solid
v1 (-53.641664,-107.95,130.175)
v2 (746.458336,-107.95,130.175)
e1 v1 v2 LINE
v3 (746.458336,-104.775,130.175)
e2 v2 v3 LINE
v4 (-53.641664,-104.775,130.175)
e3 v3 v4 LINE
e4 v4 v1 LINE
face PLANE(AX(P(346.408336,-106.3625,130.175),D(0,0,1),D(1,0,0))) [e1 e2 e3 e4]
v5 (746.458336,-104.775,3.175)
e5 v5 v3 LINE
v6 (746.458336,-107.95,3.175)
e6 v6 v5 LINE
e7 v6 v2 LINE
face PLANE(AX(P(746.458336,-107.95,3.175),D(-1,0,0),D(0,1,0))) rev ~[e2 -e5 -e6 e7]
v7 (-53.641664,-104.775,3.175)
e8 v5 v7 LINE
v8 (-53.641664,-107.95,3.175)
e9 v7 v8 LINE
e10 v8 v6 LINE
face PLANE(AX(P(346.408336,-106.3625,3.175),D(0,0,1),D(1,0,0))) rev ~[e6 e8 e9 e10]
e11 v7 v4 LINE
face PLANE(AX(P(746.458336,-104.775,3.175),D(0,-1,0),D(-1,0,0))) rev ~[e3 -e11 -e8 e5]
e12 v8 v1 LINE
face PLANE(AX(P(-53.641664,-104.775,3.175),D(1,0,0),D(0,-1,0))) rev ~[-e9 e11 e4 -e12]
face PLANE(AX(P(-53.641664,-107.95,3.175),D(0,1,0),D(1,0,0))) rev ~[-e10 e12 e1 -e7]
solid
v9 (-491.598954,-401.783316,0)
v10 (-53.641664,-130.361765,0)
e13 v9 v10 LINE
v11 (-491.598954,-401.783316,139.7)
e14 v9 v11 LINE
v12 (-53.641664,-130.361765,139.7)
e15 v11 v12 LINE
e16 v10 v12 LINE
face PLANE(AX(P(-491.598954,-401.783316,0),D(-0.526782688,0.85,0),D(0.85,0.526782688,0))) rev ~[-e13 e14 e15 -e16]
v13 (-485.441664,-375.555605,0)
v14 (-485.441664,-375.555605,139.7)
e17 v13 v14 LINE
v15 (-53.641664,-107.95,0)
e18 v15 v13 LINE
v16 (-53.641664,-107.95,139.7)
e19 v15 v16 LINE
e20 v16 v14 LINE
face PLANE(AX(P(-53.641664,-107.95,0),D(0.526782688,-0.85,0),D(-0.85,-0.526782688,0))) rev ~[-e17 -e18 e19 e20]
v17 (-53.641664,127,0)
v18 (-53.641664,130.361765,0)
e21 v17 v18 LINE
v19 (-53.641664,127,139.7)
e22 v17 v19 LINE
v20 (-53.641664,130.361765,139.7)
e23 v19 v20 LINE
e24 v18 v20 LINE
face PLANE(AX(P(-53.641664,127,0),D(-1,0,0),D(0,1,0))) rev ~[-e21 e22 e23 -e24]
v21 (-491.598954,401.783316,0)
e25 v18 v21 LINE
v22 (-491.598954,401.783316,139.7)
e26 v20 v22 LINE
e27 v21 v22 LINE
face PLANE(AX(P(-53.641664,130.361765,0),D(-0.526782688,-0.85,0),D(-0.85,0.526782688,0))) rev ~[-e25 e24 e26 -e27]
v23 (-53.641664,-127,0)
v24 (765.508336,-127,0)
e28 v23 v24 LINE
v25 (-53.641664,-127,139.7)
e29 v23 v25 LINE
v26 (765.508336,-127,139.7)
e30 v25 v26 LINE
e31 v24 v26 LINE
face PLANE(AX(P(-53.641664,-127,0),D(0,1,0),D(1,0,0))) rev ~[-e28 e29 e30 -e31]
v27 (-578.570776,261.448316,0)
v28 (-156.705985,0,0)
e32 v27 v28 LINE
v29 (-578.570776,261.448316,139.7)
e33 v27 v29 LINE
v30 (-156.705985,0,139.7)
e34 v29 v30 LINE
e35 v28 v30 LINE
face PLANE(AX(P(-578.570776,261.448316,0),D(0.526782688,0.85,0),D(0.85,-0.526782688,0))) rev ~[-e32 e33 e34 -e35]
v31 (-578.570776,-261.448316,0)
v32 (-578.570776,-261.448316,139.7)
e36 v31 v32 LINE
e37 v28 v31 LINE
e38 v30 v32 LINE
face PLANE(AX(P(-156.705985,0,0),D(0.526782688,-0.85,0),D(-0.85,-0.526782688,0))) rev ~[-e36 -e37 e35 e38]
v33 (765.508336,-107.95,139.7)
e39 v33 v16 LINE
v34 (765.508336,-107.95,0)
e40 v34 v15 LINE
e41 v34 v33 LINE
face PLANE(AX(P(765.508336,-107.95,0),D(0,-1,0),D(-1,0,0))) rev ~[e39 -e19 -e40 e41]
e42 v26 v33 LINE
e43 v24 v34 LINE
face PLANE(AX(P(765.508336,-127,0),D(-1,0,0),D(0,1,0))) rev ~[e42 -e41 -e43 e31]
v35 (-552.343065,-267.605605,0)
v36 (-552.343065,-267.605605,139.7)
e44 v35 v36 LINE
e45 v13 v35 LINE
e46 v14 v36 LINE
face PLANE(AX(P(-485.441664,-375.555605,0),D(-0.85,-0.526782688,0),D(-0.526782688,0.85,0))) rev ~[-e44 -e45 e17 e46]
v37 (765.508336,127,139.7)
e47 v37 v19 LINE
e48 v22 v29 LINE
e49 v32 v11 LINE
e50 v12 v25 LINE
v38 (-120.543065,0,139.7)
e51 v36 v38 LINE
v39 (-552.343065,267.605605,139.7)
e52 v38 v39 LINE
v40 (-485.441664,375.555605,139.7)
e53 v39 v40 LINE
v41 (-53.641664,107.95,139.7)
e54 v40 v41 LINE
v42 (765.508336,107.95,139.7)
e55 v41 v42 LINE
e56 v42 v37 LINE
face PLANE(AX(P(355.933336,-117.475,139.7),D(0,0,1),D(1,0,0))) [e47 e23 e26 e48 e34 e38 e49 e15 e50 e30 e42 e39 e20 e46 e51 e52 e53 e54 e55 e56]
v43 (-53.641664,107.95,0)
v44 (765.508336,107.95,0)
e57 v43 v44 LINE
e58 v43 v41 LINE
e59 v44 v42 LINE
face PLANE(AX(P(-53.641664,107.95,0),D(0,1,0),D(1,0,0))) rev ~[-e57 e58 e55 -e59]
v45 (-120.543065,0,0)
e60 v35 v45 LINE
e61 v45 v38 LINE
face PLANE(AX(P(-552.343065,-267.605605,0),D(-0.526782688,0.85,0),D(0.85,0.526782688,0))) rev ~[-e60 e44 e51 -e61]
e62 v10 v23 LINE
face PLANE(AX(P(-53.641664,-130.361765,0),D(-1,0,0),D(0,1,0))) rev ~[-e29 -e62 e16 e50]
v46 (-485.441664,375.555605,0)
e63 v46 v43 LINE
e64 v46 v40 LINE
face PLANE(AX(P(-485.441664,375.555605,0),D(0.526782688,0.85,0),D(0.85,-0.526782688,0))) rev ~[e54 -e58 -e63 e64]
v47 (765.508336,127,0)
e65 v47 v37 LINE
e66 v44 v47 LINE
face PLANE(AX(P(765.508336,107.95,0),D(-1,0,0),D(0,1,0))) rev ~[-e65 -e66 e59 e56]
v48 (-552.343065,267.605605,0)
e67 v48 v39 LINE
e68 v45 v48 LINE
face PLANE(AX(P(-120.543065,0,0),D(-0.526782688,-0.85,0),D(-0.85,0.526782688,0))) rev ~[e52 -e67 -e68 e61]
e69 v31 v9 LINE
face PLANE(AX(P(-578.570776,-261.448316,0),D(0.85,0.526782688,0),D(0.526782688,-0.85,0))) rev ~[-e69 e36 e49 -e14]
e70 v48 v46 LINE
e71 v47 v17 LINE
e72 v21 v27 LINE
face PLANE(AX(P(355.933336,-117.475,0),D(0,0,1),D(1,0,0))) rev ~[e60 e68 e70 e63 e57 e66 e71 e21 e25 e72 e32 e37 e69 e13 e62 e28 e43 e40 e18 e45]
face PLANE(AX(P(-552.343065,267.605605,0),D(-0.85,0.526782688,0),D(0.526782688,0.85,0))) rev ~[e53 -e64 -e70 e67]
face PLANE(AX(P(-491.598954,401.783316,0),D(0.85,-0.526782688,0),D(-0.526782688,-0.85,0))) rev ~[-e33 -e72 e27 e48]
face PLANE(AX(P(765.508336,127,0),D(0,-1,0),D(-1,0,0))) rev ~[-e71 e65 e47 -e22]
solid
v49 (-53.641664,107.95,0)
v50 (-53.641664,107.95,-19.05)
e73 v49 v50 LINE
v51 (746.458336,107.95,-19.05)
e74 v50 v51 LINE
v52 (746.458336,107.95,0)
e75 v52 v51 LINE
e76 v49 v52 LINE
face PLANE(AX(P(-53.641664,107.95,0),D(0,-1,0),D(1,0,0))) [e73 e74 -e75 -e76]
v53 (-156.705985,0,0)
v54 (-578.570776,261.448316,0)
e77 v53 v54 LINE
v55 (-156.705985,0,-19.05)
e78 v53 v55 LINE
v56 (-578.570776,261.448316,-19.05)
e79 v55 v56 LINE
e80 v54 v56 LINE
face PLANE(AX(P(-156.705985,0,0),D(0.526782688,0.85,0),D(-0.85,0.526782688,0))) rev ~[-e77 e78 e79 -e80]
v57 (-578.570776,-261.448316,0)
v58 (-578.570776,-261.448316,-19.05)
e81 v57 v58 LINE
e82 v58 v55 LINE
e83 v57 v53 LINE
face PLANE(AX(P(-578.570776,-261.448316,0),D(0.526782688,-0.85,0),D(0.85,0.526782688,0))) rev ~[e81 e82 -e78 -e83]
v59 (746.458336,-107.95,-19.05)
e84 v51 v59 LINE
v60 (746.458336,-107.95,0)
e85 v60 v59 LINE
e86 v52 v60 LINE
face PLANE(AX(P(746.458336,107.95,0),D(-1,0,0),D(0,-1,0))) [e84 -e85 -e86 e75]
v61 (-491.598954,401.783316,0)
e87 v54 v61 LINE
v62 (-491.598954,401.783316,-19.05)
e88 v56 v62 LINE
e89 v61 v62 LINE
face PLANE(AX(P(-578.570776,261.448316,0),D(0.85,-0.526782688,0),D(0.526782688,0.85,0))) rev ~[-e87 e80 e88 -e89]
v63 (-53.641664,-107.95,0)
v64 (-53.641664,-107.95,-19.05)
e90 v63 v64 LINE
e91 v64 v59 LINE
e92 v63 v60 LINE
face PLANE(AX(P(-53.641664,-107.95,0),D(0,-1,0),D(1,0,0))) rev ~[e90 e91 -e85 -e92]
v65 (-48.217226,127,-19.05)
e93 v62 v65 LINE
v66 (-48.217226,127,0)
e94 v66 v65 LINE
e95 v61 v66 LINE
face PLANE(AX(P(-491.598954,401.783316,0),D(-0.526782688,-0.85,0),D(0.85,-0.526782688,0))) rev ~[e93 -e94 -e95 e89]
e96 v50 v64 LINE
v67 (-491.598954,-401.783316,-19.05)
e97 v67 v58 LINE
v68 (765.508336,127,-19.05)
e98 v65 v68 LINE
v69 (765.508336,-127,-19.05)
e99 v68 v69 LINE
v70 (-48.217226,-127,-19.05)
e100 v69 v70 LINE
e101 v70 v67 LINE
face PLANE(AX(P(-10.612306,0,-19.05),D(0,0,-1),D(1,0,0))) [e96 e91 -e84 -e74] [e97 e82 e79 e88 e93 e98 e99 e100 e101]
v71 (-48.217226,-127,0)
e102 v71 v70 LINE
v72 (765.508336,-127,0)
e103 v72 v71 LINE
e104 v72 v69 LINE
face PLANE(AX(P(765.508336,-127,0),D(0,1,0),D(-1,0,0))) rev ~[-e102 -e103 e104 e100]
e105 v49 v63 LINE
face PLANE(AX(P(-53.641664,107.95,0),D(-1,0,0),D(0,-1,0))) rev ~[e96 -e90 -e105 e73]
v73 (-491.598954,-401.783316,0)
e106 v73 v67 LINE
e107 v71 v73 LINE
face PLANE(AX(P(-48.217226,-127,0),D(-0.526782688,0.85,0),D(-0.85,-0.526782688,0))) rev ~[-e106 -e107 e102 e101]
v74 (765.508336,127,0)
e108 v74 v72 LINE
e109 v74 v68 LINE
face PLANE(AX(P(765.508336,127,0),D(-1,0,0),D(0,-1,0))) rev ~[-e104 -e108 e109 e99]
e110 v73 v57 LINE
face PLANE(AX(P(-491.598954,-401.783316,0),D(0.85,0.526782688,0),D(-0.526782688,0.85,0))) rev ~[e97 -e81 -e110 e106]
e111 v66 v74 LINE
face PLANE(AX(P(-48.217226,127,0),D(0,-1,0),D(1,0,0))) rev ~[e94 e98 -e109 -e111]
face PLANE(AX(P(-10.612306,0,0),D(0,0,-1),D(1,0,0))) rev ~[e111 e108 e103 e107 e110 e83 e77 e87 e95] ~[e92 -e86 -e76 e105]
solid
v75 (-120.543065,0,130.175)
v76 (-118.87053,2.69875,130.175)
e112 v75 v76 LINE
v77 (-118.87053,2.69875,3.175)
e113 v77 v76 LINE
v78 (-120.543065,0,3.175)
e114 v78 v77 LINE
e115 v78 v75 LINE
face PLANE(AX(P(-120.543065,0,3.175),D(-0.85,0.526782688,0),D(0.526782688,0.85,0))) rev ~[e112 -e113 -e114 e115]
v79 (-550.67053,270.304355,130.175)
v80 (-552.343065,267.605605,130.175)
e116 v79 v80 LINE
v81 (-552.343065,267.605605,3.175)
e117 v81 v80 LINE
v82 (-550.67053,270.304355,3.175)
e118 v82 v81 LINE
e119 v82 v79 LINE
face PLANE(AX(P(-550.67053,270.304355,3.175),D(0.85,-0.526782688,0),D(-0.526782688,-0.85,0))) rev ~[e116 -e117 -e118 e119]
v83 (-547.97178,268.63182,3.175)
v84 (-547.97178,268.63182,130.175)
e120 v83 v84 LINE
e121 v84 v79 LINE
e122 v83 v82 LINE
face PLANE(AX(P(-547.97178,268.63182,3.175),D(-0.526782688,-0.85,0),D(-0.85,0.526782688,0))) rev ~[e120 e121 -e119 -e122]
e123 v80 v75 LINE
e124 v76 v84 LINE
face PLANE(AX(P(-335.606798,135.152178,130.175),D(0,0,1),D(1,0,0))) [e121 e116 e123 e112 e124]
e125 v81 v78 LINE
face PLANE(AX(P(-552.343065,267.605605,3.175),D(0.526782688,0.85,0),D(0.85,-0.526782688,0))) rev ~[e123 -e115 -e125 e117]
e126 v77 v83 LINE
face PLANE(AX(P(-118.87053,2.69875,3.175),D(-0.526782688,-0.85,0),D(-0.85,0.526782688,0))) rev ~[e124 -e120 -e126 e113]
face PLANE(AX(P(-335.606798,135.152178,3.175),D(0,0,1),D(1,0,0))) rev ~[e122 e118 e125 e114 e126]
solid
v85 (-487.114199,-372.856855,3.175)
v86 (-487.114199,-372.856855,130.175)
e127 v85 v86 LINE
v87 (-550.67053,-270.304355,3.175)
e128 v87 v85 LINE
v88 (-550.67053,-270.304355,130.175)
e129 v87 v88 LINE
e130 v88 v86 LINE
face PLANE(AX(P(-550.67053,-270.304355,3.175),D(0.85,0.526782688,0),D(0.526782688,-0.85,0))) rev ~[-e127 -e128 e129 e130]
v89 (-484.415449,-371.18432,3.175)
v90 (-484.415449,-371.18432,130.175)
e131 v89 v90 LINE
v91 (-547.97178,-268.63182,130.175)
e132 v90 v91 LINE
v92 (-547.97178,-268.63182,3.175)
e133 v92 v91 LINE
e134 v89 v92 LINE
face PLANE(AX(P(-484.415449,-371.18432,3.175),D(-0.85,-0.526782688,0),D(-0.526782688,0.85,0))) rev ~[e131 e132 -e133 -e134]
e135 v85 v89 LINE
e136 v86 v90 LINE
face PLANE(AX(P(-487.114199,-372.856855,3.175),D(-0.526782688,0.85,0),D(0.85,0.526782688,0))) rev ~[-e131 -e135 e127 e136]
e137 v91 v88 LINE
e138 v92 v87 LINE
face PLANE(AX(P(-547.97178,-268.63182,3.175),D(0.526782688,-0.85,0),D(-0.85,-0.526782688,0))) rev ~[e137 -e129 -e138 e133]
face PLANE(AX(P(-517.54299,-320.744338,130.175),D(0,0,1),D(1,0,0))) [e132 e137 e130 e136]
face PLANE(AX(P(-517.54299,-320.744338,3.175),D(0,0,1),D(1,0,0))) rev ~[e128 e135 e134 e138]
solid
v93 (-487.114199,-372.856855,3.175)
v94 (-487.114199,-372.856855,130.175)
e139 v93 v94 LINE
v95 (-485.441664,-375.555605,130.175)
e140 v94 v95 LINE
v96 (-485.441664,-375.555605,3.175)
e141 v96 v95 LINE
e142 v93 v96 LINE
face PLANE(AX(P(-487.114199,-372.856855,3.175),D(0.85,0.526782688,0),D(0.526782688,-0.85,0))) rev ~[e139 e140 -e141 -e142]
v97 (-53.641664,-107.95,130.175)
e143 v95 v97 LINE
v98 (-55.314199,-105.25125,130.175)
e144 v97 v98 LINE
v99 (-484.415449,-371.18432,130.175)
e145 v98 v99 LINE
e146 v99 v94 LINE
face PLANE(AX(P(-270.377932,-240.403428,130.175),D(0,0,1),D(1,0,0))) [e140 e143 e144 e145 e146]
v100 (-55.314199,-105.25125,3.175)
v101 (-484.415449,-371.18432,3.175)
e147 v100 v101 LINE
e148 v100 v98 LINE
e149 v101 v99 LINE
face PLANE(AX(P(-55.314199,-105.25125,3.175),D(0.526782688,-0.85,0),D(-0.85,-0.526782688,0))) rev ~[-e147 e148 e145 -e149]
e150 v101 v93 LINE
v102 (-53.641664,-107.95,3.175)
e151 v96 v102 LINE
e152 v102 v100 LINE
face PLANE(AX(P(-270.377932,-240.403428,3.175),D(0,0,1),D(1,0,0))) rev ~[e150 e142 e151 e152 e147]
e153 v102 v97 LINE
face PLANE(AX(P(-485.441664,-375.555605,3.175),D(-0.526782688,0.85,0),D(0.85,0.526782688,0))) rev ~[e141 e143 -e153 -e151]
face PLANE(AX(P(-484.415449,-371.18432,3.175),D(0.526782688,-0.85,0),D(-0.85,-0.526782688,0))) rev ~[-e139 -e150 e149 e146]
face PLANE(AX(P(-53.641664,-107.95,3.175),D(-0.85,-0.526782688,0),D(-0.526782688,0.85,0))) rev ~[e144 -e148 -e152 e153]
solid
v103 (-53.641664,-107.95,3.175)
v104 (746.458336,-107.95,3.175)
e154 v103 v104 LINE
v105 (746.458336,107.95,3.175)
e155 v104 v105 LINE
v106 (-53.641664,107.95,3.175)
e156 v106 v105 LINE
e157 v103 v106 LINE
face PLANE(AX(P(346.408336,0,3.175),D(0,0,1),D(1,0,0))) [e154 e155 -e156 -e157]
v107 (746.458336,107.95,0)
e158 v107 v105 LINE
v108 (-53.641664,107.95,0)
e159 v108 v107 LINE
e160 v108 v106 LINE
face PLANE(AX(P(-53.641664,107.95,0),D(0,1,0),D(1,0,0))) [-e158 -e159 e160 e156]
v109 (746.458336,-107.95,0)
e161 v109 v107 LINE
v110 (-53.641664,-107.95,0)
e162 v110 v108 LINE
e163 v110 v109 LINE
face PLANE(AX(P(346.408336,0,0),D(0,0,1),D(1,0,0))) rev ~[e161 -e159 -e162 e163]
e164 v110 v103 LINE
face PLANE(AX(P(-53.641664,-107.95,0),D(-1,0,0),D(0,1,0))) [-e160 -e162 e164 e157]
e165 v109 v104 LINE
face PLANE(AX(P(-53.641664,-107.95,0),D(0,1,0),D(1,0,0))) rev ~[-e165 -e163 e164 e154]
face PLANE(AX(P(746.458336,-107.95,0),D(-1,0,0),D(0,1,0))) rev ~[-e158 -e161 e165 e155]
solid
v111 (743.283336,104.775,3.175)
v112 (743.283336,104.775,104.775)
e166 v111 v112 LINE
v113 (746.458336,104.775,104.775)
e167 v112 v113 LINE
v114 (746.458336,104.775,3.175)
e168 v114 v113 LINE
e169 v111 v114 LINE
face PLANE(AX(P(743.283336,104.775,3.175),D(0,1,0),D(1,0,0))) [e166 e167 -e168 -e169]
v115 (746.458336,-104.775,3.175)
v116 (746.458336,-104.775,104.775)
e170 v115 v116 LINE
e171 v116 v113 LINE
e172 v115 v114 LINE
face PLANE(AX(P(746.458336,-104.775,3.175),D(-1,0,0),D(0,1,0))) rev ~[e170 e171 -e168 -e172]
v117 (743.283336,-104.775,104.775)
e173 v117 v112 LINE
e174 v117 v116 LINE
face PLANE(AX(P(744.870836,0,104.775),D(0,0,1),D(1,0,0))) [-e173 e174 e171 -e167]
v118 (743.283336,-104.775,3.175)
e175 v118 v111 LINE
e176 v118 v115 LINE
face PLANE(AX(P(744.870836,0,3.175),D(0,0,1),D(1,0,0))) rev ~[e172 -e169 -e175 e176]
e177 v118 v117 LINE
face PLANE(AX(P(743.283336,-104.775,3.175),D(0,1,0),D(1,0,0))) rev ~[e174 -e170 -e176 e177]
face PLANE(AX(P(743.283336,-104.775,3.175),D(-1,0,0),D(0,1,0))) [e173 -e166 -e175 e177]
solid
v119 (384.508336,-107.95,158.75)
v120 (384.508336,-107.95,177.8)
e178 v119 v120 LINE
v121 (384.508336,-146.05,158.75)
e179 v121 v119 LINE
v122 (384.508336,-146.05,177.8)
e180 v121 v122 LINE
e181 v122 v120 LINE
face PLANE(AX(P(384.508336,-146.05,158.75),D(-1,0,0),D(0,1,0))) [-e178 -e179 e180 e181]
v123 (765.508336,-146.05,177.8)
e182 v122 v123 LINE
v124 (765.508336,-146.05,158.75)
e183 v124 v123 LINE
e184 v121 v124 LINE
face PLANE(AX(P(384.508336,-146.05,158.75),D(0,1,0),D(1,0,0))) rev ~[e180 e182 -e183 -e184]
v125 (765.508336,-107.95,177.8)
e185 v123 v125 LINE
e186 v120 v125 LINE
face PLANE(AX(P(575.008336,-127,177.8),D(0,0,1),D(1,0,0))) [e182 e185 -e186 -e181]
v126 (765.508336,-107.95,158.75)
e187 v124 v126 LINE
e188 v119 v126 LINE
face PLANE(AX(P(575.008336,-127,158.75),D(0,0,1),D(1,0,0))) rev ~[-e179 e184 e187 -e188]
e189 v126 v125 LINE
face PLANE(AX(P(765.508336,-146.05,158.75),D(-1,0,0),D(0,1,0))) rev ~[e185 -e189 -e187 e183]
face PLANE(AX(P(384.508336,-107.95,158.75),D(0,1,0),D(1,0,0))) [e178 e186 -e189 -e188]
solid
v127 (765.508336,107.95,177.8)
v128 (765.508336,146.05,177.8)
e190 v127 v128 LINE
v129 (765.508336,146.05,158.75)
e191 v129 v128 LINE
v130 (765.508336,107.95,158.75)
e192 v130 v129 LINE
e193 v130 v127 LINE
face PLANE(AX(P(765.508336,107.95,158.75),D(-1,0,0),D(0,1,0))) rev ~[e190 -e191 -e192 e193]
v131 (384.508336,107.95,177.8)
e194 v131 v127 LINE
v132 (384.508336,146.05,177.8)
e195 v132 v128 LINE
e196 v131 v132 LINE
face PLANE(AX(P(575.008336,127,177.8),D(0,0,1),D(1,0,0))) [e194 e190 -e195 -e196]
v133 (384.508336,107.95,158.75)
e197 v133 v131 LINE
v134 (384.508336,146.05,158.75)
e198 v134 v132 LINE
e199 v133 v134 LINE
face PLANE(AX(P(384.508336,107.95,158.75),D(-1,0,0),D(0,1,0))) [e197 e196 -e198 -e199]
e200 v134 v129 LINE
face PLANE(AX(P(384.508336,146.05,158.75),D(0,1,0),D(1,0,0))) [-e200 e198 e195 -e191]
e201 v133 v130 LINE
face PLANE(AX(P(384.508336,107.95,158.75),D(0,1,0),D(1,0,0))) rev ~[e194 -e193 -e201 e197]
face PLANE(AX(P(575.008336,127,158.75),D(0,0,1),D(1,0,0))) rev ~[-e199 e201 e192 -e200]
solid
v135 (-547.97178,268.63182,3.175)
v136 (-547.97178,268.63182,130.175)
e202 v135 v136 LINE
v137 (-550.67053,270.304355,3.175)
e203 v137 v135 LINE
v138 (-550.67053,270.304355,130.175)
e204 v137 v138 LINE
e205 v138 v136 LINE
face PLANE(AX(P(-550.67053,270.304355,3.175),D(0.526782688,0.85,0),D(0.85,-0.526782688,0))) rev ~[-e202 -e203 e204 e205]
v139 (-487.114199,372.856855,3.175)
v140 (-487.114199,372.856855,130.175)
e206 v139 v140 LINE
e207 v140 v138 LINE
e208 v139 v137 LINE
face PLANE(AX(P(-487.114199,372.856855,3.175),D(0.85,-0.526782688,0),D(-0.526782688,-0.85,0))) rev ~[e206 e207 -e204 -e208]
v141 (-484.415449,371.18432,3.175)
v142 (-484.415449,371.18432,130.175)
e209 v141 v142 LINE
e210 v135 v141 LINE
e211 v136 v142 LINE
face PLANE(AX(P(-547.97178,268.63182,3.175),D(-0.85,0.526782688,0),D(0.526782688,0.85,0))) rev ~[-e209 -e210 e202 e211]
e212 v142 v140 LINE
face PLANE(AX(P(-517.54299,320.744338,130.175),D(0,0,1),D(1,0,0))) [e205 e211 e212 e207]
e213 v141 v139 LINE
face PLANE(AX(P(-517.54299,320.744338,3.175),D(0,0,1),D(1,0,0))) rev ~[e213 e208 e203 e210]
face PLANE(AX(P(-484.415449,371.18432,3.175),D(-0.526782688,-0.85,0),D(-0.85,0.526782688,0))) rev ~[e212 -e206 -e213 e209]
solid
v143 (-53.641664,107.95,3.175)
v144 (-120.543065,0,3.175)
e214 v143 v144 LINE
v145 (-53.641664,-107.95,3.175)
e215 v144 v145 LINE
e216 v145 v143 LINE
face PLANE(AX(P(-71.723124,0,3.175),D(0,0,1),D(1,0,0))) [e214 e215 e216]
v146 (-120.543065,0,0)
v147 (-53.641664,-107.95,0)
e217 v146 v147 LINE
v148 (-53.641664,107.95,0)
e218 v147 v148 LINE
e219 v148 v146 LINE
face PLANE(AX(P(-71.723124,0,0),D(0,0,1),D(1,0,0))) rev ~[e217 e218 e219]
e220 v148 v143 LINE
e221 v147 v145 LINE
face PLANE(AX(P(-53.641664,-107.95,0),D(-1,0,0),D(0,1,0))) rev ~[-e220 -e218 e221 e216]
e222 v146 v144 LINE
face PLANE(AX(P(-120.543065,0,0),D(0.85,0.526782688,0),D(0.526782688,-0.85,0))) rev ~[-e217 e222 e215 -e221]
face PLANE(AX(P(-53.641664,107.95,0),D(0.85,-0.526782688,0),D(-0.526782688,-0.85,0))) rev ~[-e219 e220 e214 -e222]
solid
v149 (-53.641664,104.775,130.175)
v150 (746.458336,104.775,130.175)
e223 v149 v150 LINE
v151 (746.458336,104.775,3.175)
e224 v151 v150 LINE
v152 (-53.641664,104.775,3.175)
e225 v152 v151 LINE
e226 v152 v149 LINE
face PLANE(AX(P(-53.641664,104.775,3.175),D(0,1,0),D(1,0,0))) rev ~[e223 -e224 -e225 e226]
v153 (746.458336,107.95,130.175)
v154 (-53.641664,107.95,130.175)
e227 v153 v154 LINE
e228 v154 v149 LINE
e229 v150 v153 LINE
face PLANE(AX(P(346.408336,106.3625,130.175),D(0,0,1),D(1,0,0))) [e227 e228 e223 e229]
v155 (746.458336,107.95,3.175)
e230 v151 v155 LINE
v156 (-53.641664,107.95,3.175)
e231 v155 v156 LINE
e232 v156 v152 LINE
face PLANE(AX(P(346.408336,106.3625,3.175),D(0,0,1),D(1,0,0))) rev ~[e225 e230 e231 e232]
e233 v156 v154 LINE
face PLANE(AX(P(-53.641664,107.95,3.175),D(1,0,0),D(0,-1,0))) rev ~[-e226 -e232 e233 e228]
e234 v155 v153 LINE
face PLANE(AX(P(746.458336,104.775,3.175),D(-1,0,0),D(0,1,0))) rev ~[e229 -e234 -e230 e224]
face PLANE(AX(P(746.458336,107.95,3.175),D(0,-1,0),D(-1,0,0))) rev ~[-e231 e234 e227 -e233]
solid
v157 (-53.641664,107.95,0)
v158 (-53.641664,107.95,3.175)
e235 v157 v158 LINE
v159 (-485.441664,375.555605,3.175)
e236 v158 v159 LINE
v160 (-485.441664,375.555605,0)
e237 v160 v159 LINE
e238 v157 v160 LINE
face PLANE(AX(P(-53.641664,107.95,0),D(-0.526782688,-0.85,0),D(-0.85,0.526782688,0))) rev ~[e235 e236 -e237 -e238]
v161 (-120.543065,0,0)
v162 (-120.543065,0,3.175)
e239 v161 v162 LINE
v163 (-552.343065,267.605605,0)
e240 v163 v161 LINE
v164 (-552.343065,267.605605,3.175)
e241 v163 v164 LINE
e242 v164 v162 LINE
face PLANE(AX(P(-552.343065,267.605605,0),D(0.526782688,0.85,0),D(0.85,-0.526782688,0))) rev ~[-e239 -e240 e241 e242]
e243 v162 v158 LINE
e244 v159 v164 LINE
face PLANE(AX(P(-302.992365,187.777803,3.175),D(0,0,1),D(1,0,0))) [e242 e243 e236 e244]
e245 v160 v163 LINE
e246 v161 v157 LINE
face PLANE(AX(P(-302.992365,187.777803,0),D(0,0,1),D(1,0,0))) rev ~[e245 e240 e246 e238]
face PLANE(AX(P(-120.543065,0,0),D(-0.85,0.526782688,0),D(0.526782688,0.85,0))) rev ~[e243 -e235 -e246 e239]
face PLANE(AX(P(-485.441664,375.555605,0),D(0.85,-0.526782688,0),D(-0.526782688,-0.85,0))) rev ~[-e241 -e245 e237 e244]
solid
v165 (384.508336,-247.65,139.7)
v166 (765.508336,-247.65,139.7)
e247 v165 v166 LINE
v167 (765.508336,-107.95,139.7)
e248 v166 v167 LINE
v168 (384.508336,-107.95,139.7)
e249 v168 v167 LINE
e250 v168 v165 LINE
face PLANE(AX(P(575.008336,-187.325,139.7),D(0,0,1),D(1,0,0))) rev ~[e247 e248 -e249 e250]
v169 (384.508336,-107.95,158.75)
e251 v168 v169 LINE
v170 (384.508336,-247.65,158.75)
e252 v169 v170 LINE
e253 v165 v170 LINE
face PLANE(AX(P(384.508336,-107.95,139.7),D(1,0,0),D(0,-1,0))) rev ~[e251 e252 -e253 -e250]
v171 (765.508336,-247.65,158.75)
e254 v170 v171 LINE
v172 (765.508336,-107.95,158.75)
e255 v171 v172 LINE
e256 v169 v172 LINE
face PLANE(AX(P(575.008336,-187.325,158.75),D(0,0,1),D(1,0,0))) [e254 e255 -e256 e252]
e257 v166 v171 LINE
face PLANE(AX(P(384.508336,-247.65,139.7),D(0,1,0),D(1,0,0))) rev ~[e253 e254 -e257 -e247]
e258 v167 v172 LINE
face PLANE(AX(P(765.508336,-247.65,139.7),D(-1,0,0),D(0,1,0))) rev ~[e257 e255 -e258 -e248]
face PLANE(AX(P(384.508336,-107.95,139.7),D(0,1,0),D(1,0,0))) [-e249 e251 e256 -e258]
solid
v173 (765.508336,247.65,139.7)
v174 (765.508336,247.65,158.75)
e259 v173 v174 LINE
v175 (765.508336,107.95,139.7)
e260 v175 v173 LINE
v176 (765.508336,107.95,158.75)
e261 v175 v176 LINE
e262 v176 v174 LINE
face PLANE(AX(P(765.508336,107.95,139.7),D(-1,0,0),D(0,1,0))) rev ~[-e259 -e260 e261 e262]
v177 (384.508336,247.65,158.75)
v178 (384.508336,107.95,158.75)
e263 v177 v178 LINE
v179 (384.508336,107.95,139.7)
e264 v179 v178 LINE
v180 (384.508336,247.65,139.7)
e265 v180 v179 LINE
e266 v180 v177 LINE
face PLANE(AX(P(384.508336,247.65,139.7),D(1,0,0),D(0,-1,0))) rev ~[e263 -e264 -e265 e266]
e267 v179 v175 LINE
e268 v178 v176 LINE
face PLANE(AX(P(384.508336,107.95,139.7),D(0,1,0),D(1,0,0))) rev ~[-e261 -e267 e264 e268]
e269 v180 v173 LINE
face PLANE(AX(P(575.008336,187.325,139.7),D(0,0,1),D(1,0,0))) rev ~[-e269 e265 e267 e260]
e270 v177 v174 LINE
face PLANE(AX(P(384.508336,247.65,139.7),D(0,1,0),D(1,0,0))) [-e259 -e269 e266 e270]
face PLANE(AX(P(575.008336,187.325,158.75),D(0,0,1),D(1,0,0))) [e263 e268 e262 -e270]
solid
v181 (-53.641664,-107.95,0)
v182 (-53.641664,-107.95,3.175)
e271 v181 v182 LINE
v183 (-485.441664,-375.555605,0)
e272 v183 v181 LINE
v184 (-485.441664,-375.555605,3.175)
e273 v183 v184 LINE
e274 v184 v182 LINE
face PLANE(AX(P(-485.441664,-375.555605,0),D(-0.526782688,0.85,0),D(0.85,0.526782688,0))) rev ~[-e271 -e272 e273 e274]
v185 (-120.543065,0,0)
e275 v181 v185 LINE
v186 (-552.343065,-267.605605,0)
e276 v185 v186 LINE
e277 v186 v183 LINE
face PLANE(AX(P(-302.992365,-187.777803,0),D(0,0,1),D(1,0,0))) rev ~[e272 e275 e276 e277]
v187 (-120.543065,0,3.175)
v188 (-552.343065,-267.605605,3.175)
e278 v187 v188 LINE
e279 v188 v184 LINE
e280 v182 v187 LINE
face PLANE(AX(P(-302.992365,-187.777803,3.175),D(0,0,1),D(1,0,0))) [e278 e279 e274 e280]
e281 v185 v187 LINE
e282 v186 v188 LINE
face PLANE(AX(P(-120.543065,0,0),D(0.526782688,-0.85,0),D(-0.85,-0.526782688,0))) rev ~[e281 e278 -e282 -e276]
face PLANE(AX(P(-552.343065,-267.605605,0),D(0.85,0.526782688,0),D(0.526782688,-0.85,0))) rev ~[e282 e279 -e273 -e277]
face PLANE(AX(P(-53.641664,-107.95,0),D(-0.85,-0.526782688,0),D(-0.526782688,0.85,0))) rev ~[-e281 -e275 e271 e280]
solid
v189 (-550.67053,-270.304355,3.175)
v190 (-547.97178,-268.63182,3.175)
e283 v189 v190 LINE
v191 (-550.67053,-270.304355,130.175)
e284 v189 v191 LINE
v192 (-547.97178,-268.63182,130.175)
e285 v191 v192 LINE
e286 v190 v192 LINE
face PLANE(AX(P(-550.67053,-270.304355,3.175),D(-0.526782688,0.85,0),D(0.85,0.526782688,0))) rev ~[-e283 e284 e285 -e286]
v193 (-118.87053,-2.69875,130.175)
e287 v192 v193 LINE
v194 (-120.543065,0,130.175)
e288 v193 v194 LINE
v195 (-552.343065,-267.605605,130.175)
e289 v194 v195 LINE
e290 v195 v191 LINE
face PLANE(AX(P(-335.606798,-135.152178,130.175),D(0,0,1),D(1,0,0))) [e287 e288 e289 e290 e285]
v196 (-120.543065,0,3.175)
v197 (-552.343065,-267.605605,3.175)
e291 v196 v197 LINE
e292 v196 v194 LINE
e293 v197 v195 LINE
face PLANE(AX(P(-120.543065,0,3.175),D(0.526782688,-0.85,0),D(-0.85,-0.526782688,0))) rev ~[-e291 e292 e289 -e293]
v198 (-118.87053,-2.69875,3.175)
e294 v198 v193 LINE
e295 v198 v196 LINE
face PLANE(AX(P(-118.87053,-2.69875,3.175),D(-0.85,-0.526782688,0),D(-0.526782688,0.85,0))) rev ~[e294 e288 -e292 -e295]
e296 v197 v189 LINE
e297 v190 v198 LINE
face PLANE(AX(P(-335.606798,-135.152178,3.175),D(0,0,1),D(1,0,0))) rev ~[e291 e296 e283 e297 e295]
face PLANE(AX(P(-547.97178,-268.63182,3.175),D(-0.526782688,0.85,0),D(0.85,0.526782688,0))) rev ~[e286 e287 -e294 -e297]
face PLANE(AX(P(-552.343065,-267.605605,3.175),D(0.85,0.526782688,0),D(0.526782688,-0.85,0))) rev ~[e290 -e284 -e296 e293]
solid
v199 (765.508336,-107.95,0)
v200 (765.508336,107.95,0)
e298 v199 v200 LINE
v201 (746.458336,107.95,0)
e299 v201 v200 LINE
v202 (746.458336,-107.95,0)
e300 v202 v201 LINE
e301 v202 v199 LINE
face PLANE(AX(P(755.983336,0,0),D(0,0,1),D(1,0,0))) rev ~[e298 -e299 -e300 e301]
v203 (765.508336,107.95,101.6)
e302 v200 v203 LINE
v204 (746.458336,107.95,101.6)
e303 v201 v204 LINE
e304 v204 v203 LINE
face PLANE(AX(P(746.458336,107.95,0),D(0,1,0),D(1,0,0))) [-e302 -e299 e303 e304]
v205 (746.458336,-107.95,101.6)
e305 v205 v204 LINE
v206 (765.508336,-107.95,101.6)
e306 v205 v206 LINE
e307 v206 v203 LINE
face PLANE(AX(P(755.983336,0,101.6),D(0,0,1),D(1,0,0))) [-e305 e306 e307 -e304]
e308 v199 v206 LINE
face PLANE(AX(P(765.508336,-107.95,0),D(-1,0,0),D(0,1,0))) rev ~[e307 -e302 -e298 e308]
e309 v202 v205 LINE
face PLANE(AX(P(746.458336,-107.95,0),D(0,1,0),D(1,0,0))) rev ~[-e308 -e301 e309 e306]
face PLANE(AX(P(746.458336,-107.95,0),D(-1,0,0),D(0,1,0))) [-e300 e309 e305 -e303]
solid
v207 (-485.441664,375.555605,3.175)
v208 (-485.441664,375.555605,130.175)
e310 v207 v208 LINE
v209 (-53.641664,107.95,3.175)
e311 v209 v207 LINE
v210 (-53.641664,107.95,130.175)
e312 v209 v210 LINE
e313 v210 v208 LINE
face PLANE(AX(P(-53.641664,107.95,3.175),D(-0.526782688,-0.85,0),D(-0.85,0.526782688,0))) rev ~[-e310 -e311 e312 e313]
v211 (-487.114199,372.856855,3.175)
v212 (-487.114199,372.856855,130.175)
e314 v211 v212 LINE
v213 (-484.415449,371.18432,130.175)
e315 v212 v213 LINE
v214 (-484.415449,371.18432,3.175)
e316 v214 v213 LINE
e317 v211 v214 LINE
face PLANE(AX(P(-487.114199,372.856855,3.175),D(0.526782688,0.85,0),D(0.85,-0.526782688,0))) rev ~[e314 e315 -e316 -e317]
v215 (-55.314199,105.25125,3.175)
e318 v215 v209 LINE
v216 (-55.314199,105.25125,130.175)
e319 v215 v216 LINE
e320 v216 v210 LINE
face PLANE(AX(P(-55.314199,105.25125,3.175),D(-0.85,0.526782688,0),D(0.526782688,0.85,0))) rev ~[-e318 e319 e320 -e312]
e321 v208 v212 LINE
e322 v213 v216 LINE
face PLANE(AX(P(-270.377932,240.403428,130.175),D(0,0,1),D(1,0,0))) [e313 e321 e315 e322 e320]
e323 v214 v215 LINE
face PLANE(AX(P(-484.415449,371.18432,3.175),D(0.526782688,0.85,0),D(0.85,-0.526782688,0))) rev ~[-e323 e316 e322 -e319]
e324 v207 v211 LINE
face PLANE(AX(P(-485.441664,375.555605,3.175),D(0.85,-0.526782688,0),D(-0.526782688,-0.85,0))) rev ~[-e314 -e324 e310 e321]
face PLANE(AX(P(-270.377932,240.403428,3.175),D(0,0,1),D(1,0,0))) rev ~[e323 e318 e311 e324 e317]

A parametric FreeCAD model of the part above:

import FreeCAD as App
import Part
import Sketcher
from FreeCAD import Vector
Q = App.Units.Quantity


def add_polygon(sketch, points):
    """Adds a closed chain of lines whose ends are joined by coincident constraints."""
    first, n = sketch.GeometryCount, len(points)
    for a, b in zip(points, points[1:] + points[:1]):
        sketch.addGeometry(Part.LineSegment(App.Vector(*a, 0), App.Vector(*b, 0)), False)
    for i in range(n):
        sketch.addConstraint(Sketcher.Constraint("Coincident", first + i, 2, first + (i + 1) % n, 1))

doc = App.newDocument("Part")
body = doc.addObject("PartDesign::Body", "Body")

# Sketch on XY plane
sketch1 = body.newObject("Sketcher::SketchObject", "Sketch")
sketch1.AttachmentSupport = (doc.getObject("XY_Plane"), [""])
sketch1.MapMode = "FlatFace"
add_polygon(sketch1, [(-121, 0), (-54, 108), (-485, 376), (-552, 268)])  # lines 0-3
sketch1.addConstraint([
    Sketcher.Constraint("PointOnObject", 3, 2, -1),
    Sketcher.Constraint("Perpendicular", 0, 1),
    Sketcher.Constraint("Perpendicular", 1, 2),
    Sketcher.Constraint("Perpendicular", 2, 3),
    Sketcher.Constraint("Distance", 0, Q("5 in")),
    Sketcher.Constraint("Distance", 1, Q("20 in")),
    Sketcher.Constraint("DistanceX", 1, 2, 0, 2, Q("17 in")),
    Sketcher.Constraint("DistanceX", 0, 2, -1, 1, Q("53.641664 mm")),
])
pad1 = body.newObject("PartDesign::Pad", "Pad")
pad1.Profile = sketch1
pad1.Length = Q("0.125 in")
body2 = doc.addObject("PartDesign::Body", "Body001")

# Sketch on XY plane
sketch2 = body2.newObject("Sketcher::SketchObject", "Sketch001")
sketch2.AttachmentSupport = (doc.getObject("XY_Plane001"), [""])
sketch2.MapMode = "FlatFace"
add_polygon(sketch2, [(-485, -376), (-54, -108), (-121, 0), (-552, -268)])  # lines 0-3
sketch2.addConstraint([
    Sketcher.Constraint("PointOnObject", 1, 2, -1),
    Sketcher.Constraint("Perpendicular", 0, 1),
    Sketcher.Constraint("Perpendicular", 1, 2),
    Sketcher.Constraint("Perpendicular", 2, 3),
    Sketcher.Constraint("Distance", 0, Q("20 in")),
    Sketcher.Constraint("Distance", 1, Q("5 in")),
    Sketcher.Constraint("DistanceX", 2, 2, 1, 2, Q("17 in")),
    Sketcher.Constraint("DistanceX", 0, 2, -1, 1, Q("53.641664 mm")),
])
pad2 = body2.newObject("PartDesign::Pad", "Pad001")
pad2.Profile = sketch2
pad2.Length = Q("0.125 in")
body3 = doc.addObject("PartDesign::Body", "Body002")

# Sketch on XY plane
sketch3 = body3.newObject("Sketcher::SketchObject", "Sketch002")
sketch3.AttachmentSupport = (doc.getObject("XY_Plane002"), [""])
sketch3.MapMode = "FlatFace"
add_polygon(sketch3, [(-121, 0), (-54, -108), (-54, 108)])  # lines 0-2
sketch3.addConstraint([
    Sketcher.Constraint("Vertical", 1),
    Sketcher.Constraint("PointOnObject", 2, 2, -1),
    Sketcher.Constraint("Equal", 0, 2),
    Sketcher.Constraint("Distance", 0, Q("5 in")),
    Sketcher.Constraint("DistanceY", 1, 1, 1, 2, Q("8.5 in")),
    Sketcher.Constraint("DistanceX", 0, 2, -1, 1, Q("53.641664 mm")),
])
pad3 = body3.newObject("PartDesign::Pad", "Pad002")
pad3.Profile = sketch3
pad3.Length = Q("0.125 in")
body4 = doc.addObject("PartDesign::Body", "Body003")

# Sketch on XY plane
sketch4 = body4.newObject("Sketcher::SketchObject", "Sketch003")
sketch4.AttachmentSupport = (doc.getObject("XY_Plane003"), [""])
sketch4.MapMode = "FlatFace"
add_polygon(sketch4, [(-54, 108), (-54, -108), (746, -108), (746, 108)])  # lines 0-3
sketch4.addConstraint([
    Sketcher.Constraint("Vertical", 0),
    Sketcher.Constraint("Horizontal", 1),
    Sketcher.Constraint("Vertical", 2),
    Sketcher.Constraint("Horizontal", 3),
    Sketcher.Constraint("DistanceX", 1, 1, 1, 2, Q("31.5 in")),
    Sketcher.Constraint("DistanceY", 0, 2, 0, 1, Q("8.5 in")),
    Sketcher.Constraint("DistanceY", 0, 2, -1, 1, Q("4.25 in")),
    Sketcher.Constraint("DistanceX", 0, 2, -1, 1, Q("53.641664 mm")),
])
pad4 = body4.newObject("PartDesign::Pad", "Pad003")
pad4.Profile = sketch4
pad4.Length = Q("0.125 in")
body5 = doc.addObject("PartDesign::Body", "Body004")

# Sketch on XY plane
sketch5 = body5.newObject("Sketcher::SketchObject", "Sketch004")
sketch5.AttachmentSupport = (doc.getObject("XY_Plane004"), [""])
sketch5.MapMode = "FlatFace"
sketch5.AttachmentOffset = App.Placement(Vector(0, 0, 0.125 * 25.4), App.Rotation())
add_polygon(sketch5, [(-485.4, -375.6), (-53.6, -108), (-55.3, -105.3), (-484.4, -371.2), (-487.1, -372.9)])  # lines 0-4
sketch5.addConstraint([
    Sketcher.Constraint("Perpendicular", 0, 1),
    Sketcher.Constraint("Perpendicular", 1, 2),
    Sketcher.Constraint("Parallel", 2, 3),
    Sketcher.Constraint("Perpendicular", 3, 4),
    Sketcher.Constraint("Equal", 1, 3),
    Sketcher.Constraint("Distance", 0, Q("20 in")),
    Sketcher.Constraint("DistanceX", 3, 2, 1, 2, Q("17 in")),
    Sketcher.Constraint("DistanceY", 0, 2, -1, 1, Q("4.25 in")),
    Sketcher.Constraint("Distance", 1, Q("0.125 in")),
    Sketcher.Constraint("DistanceX", 1, 2, -1, 1, Q("55.314199 mm")),
])
pad5 = body5.newObject("PartDesign::Pad", "Pad004")
pad5.Profile = sketch5
pad5.Length = Q("5 in")
body6 = doc.addObject("PartDesign::Body", "Body005")

# Sketch on XY plane
sketch6 = body6.newObject("Sketcher::SketchObject", "Sketch005")
sketch6.AttachmentSupport = (doc.getObject("XY_Plane005"), [""])
sketch6.MapMode = "FlatFace"
sketch6.AttachmentOffset = App.Placement(Vector(0, 0, 0.125 * 25.4), App.Rotation())
add_polygon(sketch6, [(-550.7, -270.3), (-487.1, -372.9), (-484.4, -371.2), (-548, -268.6)])  # lines 0-3
sketch6.addConstraint([
    Sketcher.Constraint("Perpendicular", 0, 1),
    Sketcher.Constraint("Perpendicular", 1, 2),
    Sketcher.Constraint("Perpendicular", 2, 3),
    Sketcher.Constraint("Distance", 0, Q("4.75 in")),
    Sketcher.Constraint("Distance", 1, Q("0.125 in")),
    Sketcher.Constraint("DistanceY", 1, 2, 2, 2, Q("4.0375 in")),
    Sketcher.Constraint("DistanceX", 0, 2, -1, 1, Q("487.114199 mm")),
    Sketcher.Constraint("DistanceY", 1, 2, -1, 1, Q("371.18432 mm")),
])
pad6 = body6.newObject("PartDesign::Pad", "Pad005")
pad6.Profile = sketch6
pad6.Length = Q("5 in")
body7 = doc.addObject("PartDesign::Body", "Body006")

# Sketch on XY plane
sketch7 = body7.newObject("Sketcher::SketchObject", "Sketch006")
sketch7.AttachmentSupport = (doc.getObject("XY_Plane006"), [""])
sketch7.MapMode = "FlatFace"
sketch7.AttachmentOffset = App.Placement(Vector(0, 0, 0.125 * 25.4), App.Rotation())
add_polygon(sketch7, [(-552.3, -267.6), (-550.7, -270.3), (-548, -268.6), (-118.9, -2.7), (-120.5, 0)])  # lines 0-4
sketch7.addConstraint([
    Sketcher.Constraint("PointOnObject", 3, 2, -1),
    Sketcher.Constraint("Perpendicular", 0, 1),
    Sketcher.Constraint("Parallel", 1, 2),
    Sketcher.Constraint("Perpendicular", 2, 3),
    Sketcher.Constraint("Perpendicular", 3, 4),
    Sketcher.Constraint("Equal", 0, 1),
    Sketcher.Constraint("Distance", 4, Q("20 in")),
    Sketcher.Constraint("DistanceX", 0, 2, 2, 2, Q("17 in")),
    Sketcher.Constraint("Distance", 0, Q("0.125 in")),
    Sketcher.Constraint("DistanceX", 0, 2, -1, 1, Q("550.67053 mm")),
])
pad7 = body7.newObject("PartDesign::Pad", "Pad006")
pad7.Profile = sketch7
pad7.Length = Q("5 in")
body8 = doc.addObject("PartDesign::Body", "Body007")

# Sketch on XY plane
sketch8 = body8.newObject("Sketcher::SketchObject", "Sketch007")
sketch8.AttachmentSupport = (doc.getObject("XY_Plane007"), [""])
sketch8.MapMode = "FlatFace"
sketch8.AttachmentOffset = App.Placement(Vector(0, 0, 0.125 * 25.4), App.Rotation())
add_polygon(sketch8, [(-548, 268.6), (-550.7, 270.3), (-552.3, 267.6), (-120.5, 0), (-118.9, 2.7)])  # lines 0-4
sketch8.addConstraint([
    Sketcher.Constraint("PointOnObject", 2, 2, -1),
    Sketcher.Constraint("Perpendicular", 0, 1),
    Sketcher.Constraint("Perpendicular", 1, 2),
    Sketcher.Constraint("Perpendicular", 2, 3),
    Sketcher.Constraint("Perpendicular", 3, 4),
    Sketcher.Constraint("Equal", 0, 1),
    Sketcher.Constraint("Distance", 2, Q("20 in")),
    Sketcher.Constraint("DistanceX", 1, 2, 2, 2, Q("17 in")),
    Sketcher.Constraint("Distance", 0, Q("0.125 in")),
    Sketcher.Constraint("DistanceX", 0, 2, -1, 1, Q("550.67053 mm")),
])
pad8 = body8.newObject("PartDesign::Pad", "Pad007")
pad8.Profile = sketch8
pad8.Length = Q("5 in")
body9 = doc.addObject("PartDesign::Body", "Body008")

# Sketch on XY plane
sketch9 = body9.newObject("Sketcher::SketchObject", "Sketch008")
sketch9.AttachmentSupport = (doc.getObject("XY_Plane008"), [""])
sketch9.MapMode = "FlatFace"
sketch9.AttachmentOffset = App.Placement(Vector(0, 0, 0.125 * 25.4), App.Rotation())
add_polygon(sketch9, [(-55.3, 105.3), (-53.6, 108), (-485.4, 375.6), (-487.1, 372.9), (-484.4, 371.2)])  # lines 0-4
sketch9.addConstraint([
    Sketcher.Constraint("Perpendicular", 0, 1),
    Sketcher.Constraint("Perpendicular", 1, 2),
    Sketcher.Constraint("Perpendicular", 2, 3),
    Sketcher.Constraint("Parallel", 3, 4),
    Sketcher.Constraint("Equal", 2, 3),
    Sketcher.Constraint("Distance", 1, Q("20 in")),
    Sketcher.Constraint("DistanceX", 1, 2, 0, 2, Q("17 in")),
    Sketcher.Constraint("DistanceY", -1, 1, 0, 2, Q("4.25 in")),
    Sketcher.Constraint("Distance", 0, Q("0.125 in")),
    Sketcher.Constraint("DistanceX", 2, 2, -1, 1, Q("487.114199 mm")),
])
pad9 = body9.newObject("PartDesign::Pad", "Pad008")
pad9.Profile = sketch9
pad9.Length = Q("5 in")
body10 = doc.addObject("PartDesign::Body", "Body009")

# Sketch on XY plane
sketch10 = body10.newObject("Sketcher::SketchObject", "Sketch009")
sketch10.AttachmentSupport = (doc.getObject("XY_Plane009"), [""])
sketch10.MapMode = "FlatFace"
sketch10.AttachmentOffset = App.Placement(Vector(0, 0, 0.125 * 25.4), App.Rotation())
add_polygon(sketch10, [(-484.4, 371.2), (-487.1, 372.9), (-550.7, 270.3), (-548, 268.6)])  # lines 0-3
sketch10.addConstraint([
    Sketcher.Constraint("Perpendicular", 0, 1),
    Sketcher.Constraint("Perpendicular", 1, 2),
    Sketcher.Constraint("Perpendicular", 2, 3),
    Sketcher.Constraint("Distance", 1, Q("4.75 in")),
    Sketcher.Constraint("Distance", 0, Q("0.125 in")),
    Sketcher.Constraint("DistanceY", 1, 2, 0, 2, Q("4.0375 in")),
    Sketcher.Constraint("DistanceX", 0, 2, -1, 1, Q("487.114199 mm")),
    Sketcher.Constraint("DistanceY", -1, 1, 2, 2, Q("268.63182 mm")),
])
pad10 = body10.newObject("PartDesign::Pad", "Pad009")
pad10.Profile = sketch10
pad10.Length = Q("5 in")
body11 = doc.addObject("PartDesign::Body", "Body010")

# Sketch on XY plane
sketch11 = body11.newObject("Sketcher::SketchObject", "Sketch010")
sketch11.AttachmentSupport = (doc.getObject("XY_Plane010"), [""])
sketch11.MapMode = "FlatFace"
sketch11.AttachmentOffset = App.Placement(Vector(0, 0, 0.125 * 25.4), App.Rotation())
add_polygon(sketch11, [(-53.6, -104.8), (-53.6, -108), (746.5, -108), (746.5, -104.8)])  # lines 0-3
sketch11.addConstraint([
    Sketcher.Constraint("Vertical", 0),
    Sketcher.Constraint("Horizontal", 1),
    Sketcher.Constraint("Vertical", 2),
    Sketcher.Constraint("Horizontal", 3),
    Sketcher.Constraint("DistanceX", 1, 1, 1, 2, Q("31.5 in")),
    Sketcher.Constraint("DistanceY", 0, 2, 0, 1, Q("0.125 in")),
    Sketcher.Constraint("DistanceY", 0, 2, -1, 1, Q("4.25 in")),
    Sketcher.Constraint("DistanceX", 0, 2, -1, 1, Q("53.641664 mm")),
])
pad11 = body11.newObject("PartDesign::Pad", "Pad010")
pad11.Profile = sketch11
pad11.Length = Q("5 in")
body12 = doc.addObject("PartDesign::Body", "Body011")

# Sketch on XY plane
sketch12 = body12.newObject("Sketcher::SketchObject", "Sketch011")
sketch12.AttachmentSupport = (doc.getObject("XY_Plane011"), [""])
sketch12.MapMode = "FlatFace"
sketch12.AttachmentOffset = App.Placement(Vector(0, 0, 0.125 * 25.4), App.Rotation())
add_polygon(sketch12, [(743.3, 104.8), (743.3, -104.8), (746.5, -104.8), (746.5, 104.8)])  # lines 0-3
sketch12.addConstraint([
    Sketcher.Constraint("Vertical", 0),
    Sketcher.Constraint("Horizontal", 1),
    Sketcher.Constraint("Vertical", 2),
    Sketcher.Constraint("Horizontal", 3),
    Sketcher.Constraint("DistanceY", 0, 2, 0, 1, Q("8.25 in")),
    Sketcher.Constraint("DistanceX", 1, 1, 1, 2, Q("0.125 in")),
    Sketcher.Constraint("DistanceY", 0, 2, -1, 1, Q("4.125 in")),
    Sketcher.Constraint("DistanceX", -1, 1, 0, 2, Q("743.283336 mm")),
])
pad12 = body12.newObject("PartDesign::Pad", "Pad011")
pad12.Profile = sketch12
pad12.Length = Q("4 in")
body13 = doc.addObject("PartDesign::Body", "Body012")

# Sketch on XY plane
sketch13 = body13.newObject("Sketcher::SketchObject", "Sketch012")
sketch13.AttachmentSupport = (doc.getObject("XY_Plane012"), [""])
sketch13.MapMode = "FlatFace"
sketch13.AttachmentOffset = App.Placement(Vector(0, 0, 0.125 * 25.4), App.Rotation())
add_polygon(sketch13, [(-53.6, 108), (-53.6, 104.8), (746.5, 104.8), (746.5, 108)])  # lines 0-3
sketch13.addConstraint([
    Sketcher.Constraint("Vertical", 0),
    Sketcher.Constraint("Horizontal", 1),
    Sketcher.Constraint("Vertical", 2),
    Sketcher.Constraint("Horizontal", 3),
    Sketcher.Constraint("DistanceX", 1, 1, 1, 2, Q("31.5 in")),
    Sketcher.Constraint("DistanceY", 0, 2, 0, 1, Q("0.125 in")),
    Sketcher.Constraint("DistanceY", -1, 1, 2, 2, Q("4.25 in")),
    Sketcher.Constraint("DistanceX", 0, 2, -1, 1, Q("53.641664 mm")),
])
pad13 = body13.newObject("PartDesign::Pad", "Pad012")
pad13.Profile = sketch13
pad13.Length = Q("5 in")
body14 = doc.addObject("PartDesign::Body", "Body013")

# Sketch on XY plane
sketch14 = body14.newObject("Sketcher::SketchObject", "Sketch013")
sketch14.AttachmentSupport = (doc.getObject("XY_Plane013"), [""])
sketch14.MapMode = "FlatFace"
add_polygon(sketch14, [(766, 127), (766, -127), (-48, -127), (-492, -402), (-579, -261), (-157, 0), (-579, 261), (-492, 402), (-48, 127)])  # lines 0-8
add_polygon(sketch14, [(746, 108), (-54, 108), (-54, -108), (746, -108)])  # lines 9-12
sketch14.addConstraint([
    Sketcher.Constraint("Vertical", 0),
    Sketcher.Constraint("Horizontal", 1),
    Sketcher.Constraint("Horizontal", 8),
    Sketcher.Constraint("Horizontal", 9),
    Sketcher.Constraint("Vertical", 10),
    Sketcher.Constraint("Horizontal", 11),
    Sketcher.Constraint("Vertical", 12),
    Sketcher.Constraint("Symmetric", 3, 2, 5, 2, -1),
    Sketcher.Constraint("Symmetric", 2, 2, 6, 2, -1),
    Sketcher.Constraint("Symmetric", 1, 2, 7, 2, -1),
    Sketcher.Constraint("PointOnObject", 4, 2, -1),
    Sketcher.Constraint("Perpendicular", 2, 3),
    Sketcher.Constraint("Perpendicular", 3, 4),
    Sketcher.Constraint("DistanceY", 0, 2, 0, 1, Q("10 in")),
    Sketcher.Constraint("DistanceX", 9, 2, 9, 1, Q("31.5 in")),
    Sketcher.Constraint("DistanceY", 10, 2, 10, 1, Q("8.5 in")),
    Sketcher.Constraint("Distance", 3, Q("6.5 in")),
    Sketcher.Constraint("DistanceY", -1, 1, 9, 2, Q("4.25 in")),
    Sketcher.Constraint("DistanceX", 11, 2, 0, 2, Q("0.75 in")),
    Sketcher.Constraint("DistanceY", 2, 2, 3, 2, Q("5.525 in")),
    Sketcher.Constraint("Distance", 4, Q("496.311518 mm")),
    Sketcher.Constraint("DistanceX", 1, 2, 1, 1, Q("813.725562 mm")),
    Sketcher.Constraint("DistanceX", -1, 1, 0, 2, Q("765.508336 mm")),
])
pad14 = body14.newObject("PartDesign::Pad", "Pad013")
pad14.Profile = sketch14
pad14.Length = Q("0.75 in")
pad14.Reversed = True
body15 = doc.addObject("PartDesign::Body", "Body014")

# Sketch on XY plane
sketch15 = body15.newObject("Sketcher::SketchObject", "Sketch014")
sketch15.AttachmentSupport = (doc.getObject("XY_Plane014"), [""])
sketch15.MapMode = "FlatFace"
add_polygon(sketch15, [(-53.6, -127), (765.5, -127), (765.5, -108), (-53.6, -108), (-485.4, -375.6), (-552.3, -267.6), (-120.5, 0), (-552.3, 267.6), (-485.4, 375.6), (-53.6, 108), (765.5, 108), (765.5, 127), (-53.6, 127), (-53.6, 130.4), (-491.6, 401.8), (-578.6, 261.4), (-156.7, 0), (-578.6, -261.4), (-491.6, -401.8), (-53.6, -130.4)])  # lines 0-19
sketch15.addConstraint([
    Sketcher.Constraint("Horizontal", 0),
    Sketcher.Constraint("Vertical", 1),
    Sketcher.Constraint("Horizontal", 2),
    Sketcher.Constraint("Horizontal", 9),
    Sketcher.Constraint("Vertical", 10),
    Sketcher.Constraint("Horizontal", 11),
    Sketcher.Constraint("Vertical", 12),
    Sketcher.Constraint("Vertical", 19),
    Sketcher.Constraint("Symmetric", 4, 2, 6, 2, -1),
    Sketcher.Constraint("Symmetric", 3, 2, 7, 2, -1),
    Sketcher.Constraint("Symmetric", 2, 2, 8, 2, -1),
    Sketcher.Constraint("Symmetric", 0, 2, 10, 2, -1),
    Sketcher.Constraint("Symmetric", 14, 2, 16, 2, -1),
    Sketcher.Constraint("Symmetric", 13, 2, 17, 2, -1),
    Sketcher.Constraint("Symmetric", 12, 2, 18, 2, -1),
    Sketcher.Constraint("PointOnObject", 5, 2, -1),
    Sketcher.Constraint("PointOnObject", 15, 2, -1),
    Sketcher.Constraint("Perpendicular", 3, 4),
    Sketcher.Constraint("Perpendicular", 4, 5),
    Sketcher.Constraint("Parallel", 8, 13),
    Sketcher.Constraint("Perpendicular", 13, 14),
    Sketcher.Constraint("Perpendicular", 14, 15),
    Sketcher.Constraint("Vertical", 8, 2, 11, 2),
    Sketcher.Constraint("Equal", 3, 5),
    Sketcher.Constraint("Distance", 3, Q("20 in")),
    Sketcher.Constraint("Distance", 4, Q("5 in")),
    Sketcher.Constraint("DistanceY", 0, 2, -1, 1, Q("5 in")),
    Sketcher.Constraint("DistanceX", 3, 2, 2, 2, Q("17 in")),
    Sketcher.Constraint("Distance", 14, Q("6.5 in")),
    Sketcher.Constraint("DistanceX", 0, 1, 0, 2, Q("32.25 in")),
    Sketcher.Constraint("Distance", 13, Q("515.24387 mm")),
    Sketcher.Constraint("Distance", 15, Q("496.311518 mm")),
    Sketcher.Constraint("DistanceX", -1, 1, 0, 2, Q("765.508336 mm")),
])
pad15 = body15.newObject("PartDesign::Pad", "Pad014")
pad15.Profile = sketch15
pad15.Length = Q("5.5 in")
body16 = doc.addObject("PartDesign::Body", "Body015")

# Sketch on XY plane
sketch16 = body16.newObject("Sketcher::SketchObject", "Sketch015")
sketch16.AttachmentSupport = (doc.getObject("XY_Plane015"), [""])
sketch16.MapMode = "FlatFace"
add_polygon(sketch16, [(746, 108), (746, -108), (766, -108), (766, 108)])  # lines 0-3
sketch16.addConstraint([
    Sketcher.Constraint("Vertical", 0),
    Sketcher.Constraint("Horizontal", 1),
    Sketcher.Constraint("Vertical", 2),
    Sketcher.Constraint("Horizontal", 3),
    Sketcher.Constraint("DistanceY", 0, 2, 0, 1, Q("8.5 in")),
    Sketcher.Constraint("DistanceX", 1, 1, 1, 2, Q("0.75 in")),
    Sketcher.Constraint("DistanceY", 0, 2, -1, 1, Q("4.25 in")),
    Sketcher.Constraint("DistanceX", -1, 1, 0, 2, Q("746.458336 mm")),
])
pad16 = body16.newObject("PartDesign::Pad", "Pad015")
pad16.Profile = sketch16
pad16.Length = Q("4 in")
body17 = doc.addObject("PartDesign::Body", "Body016")

# Sketch on XY plane
sketch17 = body17.newObject("Sketcher::SketchObject", "Sketch016")
sketch17.AttachmentSupport = (doc.getObject("XY_Plane016"), [""])
sketch17.MapMode = "FlatFace"
sketch17.AttachmentOffset = App.Placement(Vector(0, 0, 5.5 * 25.4), App.Rotation())
add_polygon(sketch17, [(385, -248), (766, -248), (766, -108), (385, -108)])  # lines 0-3
sketch17.addConstraint([
    Sketcher.Constraint("Horizontal", 0),
    Sketcher.Constraint("Vertical", 1),
    Sketcher.Constraint("Horizontal", 2),
    Sketcher.Constraint("Vertical", 3),
    Sketcher.Constraint("DistanceX", 0, 1, 0, 2, Q("15 in")),
    Sketcher.Constraint("DistanceY", 1, 1, 1, 2, Q("5.5 in")),
    Sketcher.Constraint("DistanceY", 0, 2, -1, 1, Q("9.75 in")),
    Sketcher.Constraint("DistanceX", -1, 1, 0, 2, Q("765.508336 mm")),
])
pad17 = body17.newObject("PartDesign::Pad", "Pad016")
pad17.Profile = sketch17
pad17.Length = Q("0.75 in")
body18 = doc.addObject("PartDesign::Body", "Body017")

# Sketch on XY plane
sketch18 = body18.newObject("Sketcher::SketchObject", "Sketch017")
sketch18.AttachmentSupport = (doc.getObject("XY_Plane017"), [""])
sketch18.MapMode = "FlatFace"
sketch18.AttachmentOffset = App.Placement(Vector(0, 0, 5.5 * 25.4), App.Rotation())
add_polygon(sketch18, [(385, 248), (385, 108), (766, 108), (766, 248)])  # lines 0-3
sketch18.addConstraint([
    Sketcher.Constraint("Vertical", 0),
    Sketcher.Constraint("Horizontal", 1),
    Sketcher.Constraint("Vertical", 2),
    Sketcher.Constraint("Horizontal", 3),
    Sketcher.Constraint("DistanceX", 1, 1, 1, 2, Q("15 in")),
    Sketcher.Constraint("DistanceY", 0, 2, 0, 1, Q("5.5 in")),
    Sketcher.Constraint("DistanceY", -1, 1, 0, 2, Q("4.25 in")),
    Sketcher.Constraint("DistanceX", -1, 1, 0, 2, Q("384.508336 mm")),
])
pad18 = body18.newObject("PartDesign::Pad", "Pad017")
pad18.Profile = sketch18
pad18.Length = Q("0.75 in")
body19 = doc.addObject("PartDesign::Body", "Body018")

# Sketch on XY plane
sketch19 = body19.newObject("Sketcher::SketchObject", "Sketch018")
sketch19.AttachmentSupport = (doc.getObject("XY_Plane018"), [""])
sketch19.MapMode = "FlatFace"
sketch19.AttachmentOffset = App.Placement(Vector(0, 0, 6.25 * 25.4), App.Rotation())
add_polygon(sketch19, [(385, -108), (385, -146), (766, -146), (766, -108)])  # lines 0-3
sketch19.addConstraint([
    Sketcher.Constraint("Vertical", 0),
    Sketcher.Constraint("Horizontal", 1),
    Sketcher.Constraint("Vertical", 2),
    Sketcher.Constraint("Horizontal", 3),
    Sketcher.Constraint("DistanceX", 1, 1, 1, 2, Q("15 in")),
    Sketcher.Constraint("DistanceY", 0, 2, 0, 1, Q("1.5 in")),
    Sketcher.Constraint("DistanceY", 0, 2, -1, 1, Q("5.75 in")),
    Sketcher.Constraint("DistanceX", -1, 1, 0, 2, Q("384.508336 mm")),
])
pad19 = body19.newObject("PartDesign::Pad", "Pad018")
pad19.Profile = sketch19
pad19.Length = Q("0.75 in")
body20 = doc.addObject("PartDesign::Body", "Body019")

# Sketch on XY plane
sketch20 = body20.newObject("Sketcher::SketchObject", "Sketch019")
sketch20.AttachmentSupport = (doc.getObject("XY_Plane019"), [""])
sketch20.MapMode = "FlatFace"
sketch20.AttachmentOffset = App.Placement(Vector(0, 0, 6.25 * 25.4), App.Rotation())
add_polygon(sketch20, [(385, 146), (385, 108), (766, 108), (766, 146)])  # lines 0-3
sketch20.addConstraint([
    Sketcher.Constraint("Vertical", 0),
    Sketcher.Constraint("Horizontal", 1),
    Sketcher.Constraint("Vertical", 2),
    Sketcher.Constraint("Horizontal", 3),
    Sketcher.Constraint("DistanceX", 1, 1, 1, 2, Q("15 in")),
    Sketcher.Constraint("DistanceY", 0, 2, 0, 1, Q("1.5 in")),
    Sketcher.Constraint("DistanceY", -1, 1, 0, 2, Q("4.25 in")),
    Sketcher.Constraint("DistanceX", -1, 1, 0, 2, Q("384.508336 mm")),
])
pad20 = body20.newObject("PartDesign::Pad", "Pad019")
pad20.Profile = sketch20
pad20.Length = Q("0.75 in")

doc.recompute()
